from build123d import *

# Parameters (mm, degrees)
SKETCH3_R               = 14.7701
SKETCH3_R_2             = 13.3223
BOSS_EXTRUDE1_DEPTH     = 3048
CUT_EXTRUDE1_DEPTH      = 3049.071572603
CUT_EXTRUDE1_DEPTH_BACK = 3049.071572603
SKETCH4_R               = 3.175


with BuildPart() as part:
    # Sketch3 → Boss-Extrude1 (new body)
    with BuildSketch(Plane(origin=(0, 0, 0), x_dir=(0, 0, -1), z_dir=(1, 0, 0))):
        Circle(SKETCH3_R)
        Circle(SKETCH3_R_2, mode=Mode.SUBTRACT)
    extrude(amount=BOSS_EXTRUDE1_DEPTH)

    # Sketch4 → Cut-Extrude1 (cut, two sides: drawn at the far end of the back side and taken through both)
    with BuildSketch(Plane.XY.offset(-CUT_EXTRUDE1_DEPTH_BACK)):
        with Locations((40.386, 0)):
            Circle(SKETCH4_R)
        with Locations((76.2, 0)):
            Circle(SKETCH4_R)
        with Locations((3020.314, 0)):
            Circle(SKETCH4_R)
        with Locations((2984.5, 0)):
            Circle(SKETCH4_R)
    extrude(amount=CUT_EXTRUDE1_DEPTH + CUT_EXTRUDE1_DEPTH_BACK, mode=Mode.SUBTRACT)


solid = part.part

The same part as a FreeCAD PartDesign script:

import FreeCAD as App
import Part
import Sketcher

V = App.Vector
Q = App.Units.Quantity

doc = App.newDocument("Part")
body = doc.addObject("PartDesign::Body", "Body")

# Sketch on YZ plane
sketch1 = body.newObject("Sketcher::SketchObject", "Sketch")
sketch1.AttachmentSupport = (doc.getObject("YZ_Plane"), [""])
sketch1.MapMode = "FlatFace"
sketch1.addGeometry([
    Part.Circle(V(0, 0, 0), V(0, 0, 1), 14.7701),
    Part.Circle(V(0, 0, 0), V(0, 0, 1), 13.3223),
], False)
sketch1.addConstraint([
    Sketcher.Constraint("Coincident", 0, 3, -1, 1),
    Sketcher.Constraint("Coincident", 1, 3, -1, 1),
    Sketcher.Constraint("Diameter", 0, Q("1.163 in")),
    Sketcher.Constraint("Diameter", 1, Q("1.049 in")),
])
pad1 = body.newObject("PartDesign::Pad", "Pad")
pad1.Profile = sketch1
pad1.Length = Q("120 in")

# Sketch on XY plane
sketch2 = body.newObject("Sketcher::SketchObject", "Sketch001")
sketch2.AttachmentSupport = (doc.getObject("XY_Plane"), [""])
sketch2.MapMode = "FlatFace"
sketch2.addGeometry([
    Part.Circle(V(40.386, 0, 0), V(0, 0, 1), 3.175),
    Part.Circle(V(76.2, 0, 0), V(0, 0, 1), 3.175),
    Part.Circle(V(3020.314, 0, 0), V(0, 0, 1), 3.175),
    Part.Circle(V(2984.5, 0, 0), V(0, 0, 1), 3.175),
], False)
sketch2.addConstraint([
    Sketcher.Constraint("Equal", 0, 1),
    Sketcher.Constraint("Equal", 1, 2),
    Sketcher.Constraint("Equal", 2, 3),
    Sketcher.Constraint("PointOnObject", 0, 3, -1),
    Sketcher.Constraint("PointOnObject", 1, 3, -1),
    Sketcher.Constraint("PointOnObject", 2, 3, -1),
    Sketcher.Constraint("PointOnObject", 3, 3, -1),
    Sketcher.Constraint("Diameter", 0, Q("0.25 in")),
    Sketcher.Constraint("DistanceX", -1, 1, 1, 3, Q("3 in")),
    Sketcher.Constraint("DistanceX", -1, 1, 3, 3, Q("117.5 in")),
    Sketcher.Constraint("DistanceX", -1, 1, 0, 3, Q("1.59 in")),
    Sketcher.Constraint("DistanceX", -1, 1, 2, 3, Q("118.91 in")),
])
pocket1 = body.newObject("PartDesign::Pocket", "Pocket")
pocket1.Profile = sketch2
pocket1.Type = "ThroughAll"
pocket1.Midplane = True

doc.recompute()
